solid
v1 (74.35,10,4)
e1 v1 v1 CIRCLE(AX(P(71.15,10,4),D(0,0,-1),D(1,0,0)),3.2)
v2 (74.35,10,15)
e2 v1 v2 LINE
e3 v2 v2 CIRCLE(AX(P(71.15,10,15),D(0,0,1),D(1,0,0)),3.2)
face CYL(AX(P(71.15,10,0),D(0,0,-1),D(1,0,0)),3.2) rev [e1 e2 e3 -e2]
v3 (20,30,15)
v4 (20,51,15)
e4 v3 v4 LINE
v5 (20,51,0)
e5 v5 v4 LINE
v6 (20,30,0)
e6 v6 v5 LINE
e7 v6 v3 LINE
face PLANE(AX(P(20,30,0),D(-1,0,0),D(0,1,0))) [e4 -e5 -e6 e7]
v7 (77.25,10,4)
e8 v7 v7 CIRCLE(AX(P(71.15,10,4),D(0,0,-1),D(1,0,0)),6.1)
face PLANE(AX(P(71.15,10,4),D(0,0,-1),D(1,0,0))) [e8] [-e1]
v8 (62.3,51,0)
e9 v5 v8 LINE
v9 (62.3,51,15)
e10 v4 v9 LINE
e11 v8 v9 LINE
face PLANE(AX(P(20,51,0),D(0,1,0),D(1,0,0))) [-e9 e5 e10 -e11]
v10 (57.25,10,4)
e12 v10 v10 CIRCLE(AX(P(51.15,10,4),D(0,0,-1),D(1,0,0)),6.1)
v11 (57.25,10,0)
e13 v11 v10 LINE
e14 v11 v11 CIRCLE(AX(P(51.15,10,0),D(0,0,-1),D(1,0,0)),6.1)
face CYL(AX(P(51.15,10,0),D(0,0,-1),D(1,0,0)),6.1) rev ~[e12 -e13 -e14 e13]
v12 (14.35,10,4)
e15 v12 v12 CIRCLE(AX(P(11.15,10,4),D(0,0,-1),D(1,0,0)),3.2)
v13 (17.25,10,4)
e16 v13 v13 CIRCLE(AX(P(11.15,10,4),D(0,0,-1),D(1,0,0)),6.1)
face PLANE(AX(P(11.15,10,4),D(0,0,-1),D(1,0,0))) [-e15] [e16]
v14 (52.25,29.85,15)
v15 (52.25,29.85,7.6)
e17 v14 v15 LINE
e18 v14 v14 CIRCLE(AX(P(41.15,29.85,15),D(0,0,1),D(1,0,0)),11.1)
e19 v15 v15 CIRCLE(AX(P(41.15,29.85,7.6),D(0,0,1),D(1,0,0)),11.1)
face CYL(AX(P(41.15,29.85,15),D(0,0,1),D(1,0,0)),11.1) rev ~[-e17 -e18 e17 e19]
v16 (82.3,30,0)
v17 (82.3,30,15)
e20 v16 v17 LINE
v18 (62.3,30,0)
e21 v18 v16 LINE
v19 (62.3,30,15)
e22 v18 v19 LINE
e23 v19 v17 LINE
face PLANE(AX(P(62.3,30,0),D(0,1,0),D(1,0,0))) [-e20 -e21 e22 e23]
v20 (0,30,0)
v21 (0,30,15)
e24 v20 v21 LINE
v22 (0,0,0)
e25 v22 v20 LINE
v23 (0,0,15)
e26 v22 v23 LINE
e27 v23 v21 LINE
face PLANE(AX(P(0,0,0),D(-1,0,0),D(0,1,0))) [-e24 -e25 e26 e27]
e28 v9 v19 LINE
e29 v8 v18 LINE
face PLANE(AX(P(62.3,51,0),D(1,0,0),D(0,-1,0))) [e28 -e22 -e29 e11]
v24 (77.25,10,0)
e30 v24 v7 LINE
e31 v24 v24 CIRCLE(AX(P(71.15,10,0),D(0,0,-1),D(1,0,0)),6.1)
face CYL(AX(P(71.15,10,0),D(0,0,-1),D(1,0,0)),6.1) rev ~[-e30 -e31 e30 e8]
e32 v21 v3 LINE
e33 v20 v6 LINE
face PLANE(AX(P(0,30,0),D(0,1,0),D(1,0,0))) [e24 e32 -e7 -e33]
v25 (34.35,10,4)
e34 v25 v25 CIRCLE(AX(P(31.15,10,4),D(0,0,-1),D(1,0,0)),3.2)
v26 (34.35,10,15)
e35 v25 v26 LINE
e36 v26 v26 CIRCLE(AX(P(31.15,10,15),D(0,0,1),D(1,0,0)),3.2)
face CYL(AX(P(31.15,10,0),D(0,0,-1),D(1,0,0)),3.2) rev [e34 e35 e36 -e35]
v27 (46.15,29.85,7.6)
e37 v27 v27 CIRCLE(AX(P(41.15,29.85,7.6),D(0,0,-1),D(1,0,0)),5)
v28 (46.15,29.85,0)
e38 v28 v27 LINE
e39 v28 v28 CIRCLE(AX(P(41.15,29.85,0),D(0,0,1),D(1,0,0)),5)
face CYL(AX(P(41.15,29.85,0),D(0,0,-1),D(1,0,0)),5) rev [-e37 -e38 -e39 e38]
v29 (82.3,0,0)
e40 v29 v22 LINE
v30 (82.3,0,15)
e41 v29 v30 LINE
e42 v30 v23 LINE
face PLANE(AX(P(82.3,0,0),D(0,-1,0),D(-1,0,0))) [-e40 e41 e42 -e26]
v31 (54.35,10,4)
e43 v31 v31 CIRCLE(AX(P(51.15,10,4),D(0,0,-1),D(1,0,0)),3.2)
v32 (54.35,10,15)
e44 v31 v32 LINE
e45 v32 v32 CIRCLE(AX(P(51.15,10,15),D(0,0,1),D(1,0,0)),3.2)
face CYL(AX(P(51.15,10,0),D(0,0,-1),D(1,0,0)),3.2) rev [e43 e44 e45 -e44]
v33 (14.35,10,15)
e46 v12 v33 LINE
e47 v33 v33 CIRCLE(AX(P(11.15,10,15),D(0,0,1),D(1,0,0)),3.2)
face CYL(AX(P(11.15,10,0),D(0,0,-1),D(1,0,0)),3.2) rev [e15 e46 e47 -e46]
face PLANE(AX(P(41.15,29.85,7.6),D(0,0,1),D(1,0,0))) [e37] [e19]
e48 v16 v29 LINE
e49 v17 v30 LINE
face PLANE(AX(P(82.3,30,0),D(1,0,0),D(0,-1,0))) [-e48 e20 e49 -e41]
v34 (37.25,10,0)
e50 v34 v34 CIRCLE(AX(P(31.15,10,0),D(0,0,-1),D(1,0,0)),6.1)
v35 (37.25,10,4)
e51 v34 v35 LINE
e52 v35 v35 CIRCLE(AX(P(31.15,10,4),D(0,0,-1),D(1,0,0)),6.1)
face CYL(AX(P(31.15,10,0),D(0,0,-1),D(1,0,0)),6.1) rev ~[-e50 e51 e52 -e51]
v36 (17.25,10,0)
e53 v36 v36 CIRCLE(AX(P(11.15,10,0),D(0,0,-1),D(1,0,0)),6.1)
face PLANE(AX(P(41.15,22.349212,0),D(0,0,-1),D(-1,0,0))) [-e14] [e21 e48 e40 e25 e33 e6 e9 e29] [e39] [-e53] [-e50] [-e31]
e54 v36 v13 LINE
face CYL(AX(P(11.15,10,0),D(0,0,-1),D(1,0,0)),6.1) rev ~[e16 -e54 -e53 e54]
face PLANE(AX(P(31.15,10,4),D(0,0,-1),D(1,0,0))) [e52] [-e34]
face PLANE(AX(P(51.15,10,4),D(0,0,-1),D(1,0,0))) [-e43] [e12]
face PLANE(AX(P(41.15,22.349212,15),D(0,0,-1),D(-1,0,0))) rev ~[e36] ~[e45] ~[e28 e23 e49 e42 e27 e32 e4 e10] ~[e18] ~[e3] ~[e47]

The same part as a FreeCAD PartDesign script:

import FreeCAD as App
import Part
import Sketcher
from FreeCAD import Vector


def add_polygon(sketch, points):
    """Adds a closed chain of lines whose ends are joined by coincident constraints."""
    first, n = sketch.GeometryCount, len(points)
    for a, b in zip(points, points[1:] + points[:1]):
        sketch.addGeometry(Part.LineSegment(App.Vector(*a, 0), App.Vector(*b, 0)), False)
    for i in range(n):
        sketch.addConstraint(Sketcher.Constraint("Coincident", first + i, 2, first + (i + 1) % n, 1))

doc = App.newDocument("Part")
body = doc.addObject("PartDesign::Body", "Body")

# Sketch on XY plane
sketch1 = body.newObject("Sketcher::SketchObject", "Sketch")
sketch1.AttachmentSupport = (doc.getObject("XY_Plane"), [""])
sketch1.MapMode = "FlatFace"
add_polygon(sketch1, [(20, 51), (20, 30), (0, 30), (0, 0), (82.3, 0), (82.3, 30), (62.3, 30), (62.3, 51)])  # lines 0-7
sketch1.addGeometry(Part.Circle(Vector(71.2, 10, 0), Vector(0, 0, 1), 3.2), False)  # 8
sketch1.addGeometry(Part.Circle(Vector(51.1, 10, 0), Vector(0, 0, 1), 3.2), False)  # 9
sketch1.addGeometry(Part.Circle(Vector(31.1, 10, 0), Vector(0, 0, 1), 3.2), False)  # 10
sketch1.addGeometry(Part.Circle(Vector(11.2, 10, 0), Vector(0, 0, 1), 3.2), False)  # 11
sketch1.addGeometry(Part.Circle(Vector(41.1, 29.9, 0), Vector(0, 0, 1), 5), False)  # 12
sketch1.addConstraint([
    Sketcher.Constraint("Vertical", 0),
    Sketcher.Constraint("Horizontal", 1),
    Sketcher.Constraint("Vertical", 2),
    Sketcher.Constraint("Horizontal", 3),
    Sketcher.Constraint("Vertical", 4),
    Sketcher.Constraint("Horizontal", 5),
    Sketcher.Constraint("Vertical", 6),
    Sketcher.Constraint("Horizontal", 7),
    Sketcher.Constraint("Coincident", 2, 2, -1, 1),
    Sketcher.Constraint("Equal", 8, 9),
    Sketcher.Constraint("Equal", 9, 10),
    Sketcher.Constraint("Equal", 10, 11),
    Sketcher.Constraint("Horizontal", 8, 3, 9, 3),
    Sketcher.Constraint("Horizontal", 9, 3, 10, 3),
    Sketcher.Constraint("Horizontal", 10, 3, 11, 3),
    Sketcher.Constraint("Horizontal", 1, 2, 4, 2),
    Sketcher.Constraint("Equal", 1, 5),
    Sketcher.Constraint("Diameter", 12, 10.0),
    Sketcher.Constraint("Diameter", 8, 6.4),
    Sketcher.Constraint("DistanceX", 1, 2, 1, 1, 20.0),
    Sketcher.Constraint("DistanceY", 0, 2, 0, 1, 21.0),
    Sketcher.Constraint("DistanceY", 2, 2, 2, 1, 30.0),
    Sketcher.Constraint("DistanceX", 3, 1, 3, 2, 82.3),
    Sketcher.Constraint("DistanceY", -1, 1, 8, 3, 10.0),
    Sketcher.Constraint("DistanceX", 9, 3, 8, 3, 20.0),
    Sketcher.Constraint("DistanceX", 10, 3, 9, 3, 20.0),
    Sketcher.Constraint("DistanceX", 11, 3, 10, 3, 20.0),
    Sketcher.Constraint("DistanceX", 12, 3, 9, 3, 10.0),
    Sketcher.Constraint("DistanceX", -1, 1, 8, 3, 71.15),
    Sketcher.Constraint("DistanceY", -1, 1, 12, 3, 29.85),
])
pad1 = body.newObject("PartDesign::Pad", "Pad")
pad1.Profile = sketch1
pad1.Length = 15

# Sketch on XY plane
sketch2 = body.newObject("Sketcher::SketchObject", "Sketch001")
sketch2.AttachmentSupport = (doc.getObject("XY_Plane"), [""])
sketch2.MapMode = "FlatFace"
sketch2.addGeometry([
    Part.Circle(Vector(11, 10, 0), Vector(0, 0, 1), 6),
    Part.Circle(Vector(31, 10, 0), Vector(0, 0, 1), 6),
    Part.Circle(Vector(51, 10, 0), Vector(0, 0, 1), 6),
    Part.Circle(Vector(71, 10, 0), Vector(0, 0, 1), 6),
], False)
sketch2.addConstraint([
    Sketcher.Constraint("Equal", 0, 1),
    Sketcher.Constraint("Equal", 1, 2),
    Sketcher.Constraint("Equal", 2, 3),
    Sketcher.Constraint("Horizontal", 0, 3, 1, 3),
    Sketcher.Constraint("Horizontal", 1, 3, 2, 3),
    Sketcher.Constraint("Horizontal", 2, 3, 3, 3),
    Sketcher.Constraint("Diameter", 0, 12.2),
    Sketcher.Constraint("DistanceY", -1, 1, 0, 3, 10.0),
    Sketcher.Constraint("DistanceX", 0, 3, 1, 3, 20.0),
    Sketcher.Constraint("DistanceX", 1, 3, 2, 3, 20.0),
    Sketcher.Constraint("DistanceX", 2, 3, 3, 3, 20.0),
    Sketcher.Constraint("DistanceX", -1, 1, 0, 3, 11.15),
])
pocket1 = body.newObject("PartDesign::Pocket", "Pocket")
pocket1.Profile = sketch2
pocket1.Length = 4
pocket1.Reversed = True

# Sketch on XY plane
sketch3 = body.newObject("Sketcher::SketchObject", "Sketch002")
sketch3.AttachmentSupport = (doc.getObject("XY_Plane"), [""])
sketch3.MapMode = "FlatFace"
sketch3.AttachmentOffset = App.Placement(Vector(0, 0, 15), App.Rotation())
sketch3.addGeometry(Part.Circle(Vector(41, 30, 0), Vector(0, 0, 1), 11), False)
sketch3.addConstraint([
    Sketcher.Constraint("Diameter", 0, 22.2),
    Sketcher.Constraint("DistanceX", -1, 1, 0, 3, 41.15),
    Sketcher.Constraint("DistanceY", -1, 1, 0, 3, 29.85),
])
pocket2 = body.newObject("PartDesign::Pocket", "Pocket001")
pocket2.Profile = sketch3
pocket2.Length = 7.4

doc.recompute()
